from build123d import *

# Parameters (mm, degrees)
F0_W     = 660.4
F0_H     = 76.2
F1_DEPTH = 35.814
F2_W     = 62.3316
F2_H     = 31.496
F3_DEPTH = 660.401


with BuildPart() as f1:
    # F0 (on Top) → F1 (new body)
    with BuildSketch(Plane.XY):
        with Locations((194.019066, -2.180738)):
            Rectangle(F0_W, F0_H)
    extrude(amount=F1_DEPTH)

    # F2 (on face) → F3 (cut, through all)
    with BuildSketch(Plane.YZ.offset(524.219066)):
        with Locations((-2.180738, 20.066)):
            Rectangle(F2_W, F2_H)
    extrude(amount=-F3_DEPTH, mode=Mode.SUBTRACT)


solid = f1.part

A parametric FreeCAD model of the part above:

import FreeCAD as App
import Part
import Sketcher
from FreeCAD import Vector
Q = App.Units.Quantity

doc = App.newDocument("Part")
body = doc.addObject("PartDesign::Body", "Body")

# Sketch on XY plane
sketch1 = body.newObject("Sketcher::SketchObject", "Sketch")
sketch1.AttachmentSupport = (doc.getObject("XY_Plane"), [""])
sketch1.MapMode = "FlatFace"
sketch1.addGeometry([
    Part.LineSegment(Vector(-136.180934, 35.919262, 0), Vector(-136.180934, -40.280738, 0)),
    Part.LineSegment(Vector(-136.180934, -40.280738, 0), Vector(524.219066, -40.280738, 0)),
    Part.LineSegment(Vector(524.219066, -40.280738, 0), Vector(524.219066, 35.919262, 0)),
    Part.LineSegment(Vector(524.219066, 35.919262, 0), Vector(-136.180934, 35.919262, 0)),
], False)
sketch1.addConstraint([
    Sketcher.Constraint("Coincident", 0, 2, 1, 1),
    Sketcher.Constraint("Coincident", 1, 2, 2, 1),
    Sketcher.Constraint("Coincident", 2, 2, 3, 1),
    Sketcher.Constraint("Coincident", 3, 2, 0, 1),
    Sketcher.Constraint("Vertical", 0),
    Sketcher.Constraint("Horizontal", 1),
    Sketcher.Constraint("Vertical", 2),
    Sketcher.Constraint("Horizontal", 3),
    Sketcher.Constraint("DistanceX", 1, 1, 1, 2, Q("26 in")),
    Sketcher.Constraint("DistanceY", 0, 2, 0, 1, Q("3 in")),
    Sketcher.Constraint("DistanceX", 0, 2, -1, 1, 136.180934),
    Sketcher.Constraint("DistanceY", 0, 2, -1, 1, 40.280738),
])
pad1 = body.newObject("PartDesign::Pad", "Pad")
pad1.Profile = sketch1
pad1.Length = Q("1.41 in")

# Sketch on YZ plane
sketch2 = body.newObject("Sketcher::SketchObject", "Sketch001")
sketch2.AttachmentSupport = (doc.getObject("YZ_Plane"), [""])
sketch2.MapMode = "FlatFace"
sketch2.AttachmentOffset = App.Placement(Vector(0, 0, 524.219066), App.Rotation())
sketch2.addGeometry([
    Part.LineSegment(Vector(-33.346538, 35.814, 0), Vector(-33.346538, 4.318, 0)),
    Part.LineSegment(Vector(-33.346538, 4.318, 0), Vector(28.985062, 4.318, 0)),
    Part.LineSegment(Vector(28.985062, 4.318, 0), Vector(28.985062, 35.814, 0)),
    Part.LineSegment(Vector(28.985062, 35.814, 0), Vector(-33.346538, 35.814, 0)),
], False)
sketch2.addConstraint([
    Sketcher.Constraint("Coincident", 0, 2, 1, 1),
    Sketcher.Constraint("Coincident", 1, 2, 2, 1),
    Sketcher.Constraint("Coincident", 2, 2, 3, 1),
    Sketcher.Constraint("Coincident", 3, 2, 0, 1),
    Sketcher.Constraint("Vertical", 0),
    Sketcher.Constraint("Horizontal", 1),
    Sketcher.Constraint("Vertical", 2),
    Sketcher.Constraint("Horizontal", 3),
    Sketcher.Constraint("DistanceY", 0, 2, 0, 1, Q("1.24 in")),
    Sketcher.Constraint("DistanceX", 1, 1, 1, 2, Q("2.454 in")),
    Sketcher.Constraint("DistanceY", -1, 1, 0, 2, Q("0.17 in")),
    Sketcher.Constraint("DistanceX", 0, 2, -1, 1, 33.346538),
])
pocket1 = body.newObject("PartDesign::Pocket", "Pocket")
pocket1.Profile = sketch2
pocket1.Type = "ThroughAll"

doc.recompute()
